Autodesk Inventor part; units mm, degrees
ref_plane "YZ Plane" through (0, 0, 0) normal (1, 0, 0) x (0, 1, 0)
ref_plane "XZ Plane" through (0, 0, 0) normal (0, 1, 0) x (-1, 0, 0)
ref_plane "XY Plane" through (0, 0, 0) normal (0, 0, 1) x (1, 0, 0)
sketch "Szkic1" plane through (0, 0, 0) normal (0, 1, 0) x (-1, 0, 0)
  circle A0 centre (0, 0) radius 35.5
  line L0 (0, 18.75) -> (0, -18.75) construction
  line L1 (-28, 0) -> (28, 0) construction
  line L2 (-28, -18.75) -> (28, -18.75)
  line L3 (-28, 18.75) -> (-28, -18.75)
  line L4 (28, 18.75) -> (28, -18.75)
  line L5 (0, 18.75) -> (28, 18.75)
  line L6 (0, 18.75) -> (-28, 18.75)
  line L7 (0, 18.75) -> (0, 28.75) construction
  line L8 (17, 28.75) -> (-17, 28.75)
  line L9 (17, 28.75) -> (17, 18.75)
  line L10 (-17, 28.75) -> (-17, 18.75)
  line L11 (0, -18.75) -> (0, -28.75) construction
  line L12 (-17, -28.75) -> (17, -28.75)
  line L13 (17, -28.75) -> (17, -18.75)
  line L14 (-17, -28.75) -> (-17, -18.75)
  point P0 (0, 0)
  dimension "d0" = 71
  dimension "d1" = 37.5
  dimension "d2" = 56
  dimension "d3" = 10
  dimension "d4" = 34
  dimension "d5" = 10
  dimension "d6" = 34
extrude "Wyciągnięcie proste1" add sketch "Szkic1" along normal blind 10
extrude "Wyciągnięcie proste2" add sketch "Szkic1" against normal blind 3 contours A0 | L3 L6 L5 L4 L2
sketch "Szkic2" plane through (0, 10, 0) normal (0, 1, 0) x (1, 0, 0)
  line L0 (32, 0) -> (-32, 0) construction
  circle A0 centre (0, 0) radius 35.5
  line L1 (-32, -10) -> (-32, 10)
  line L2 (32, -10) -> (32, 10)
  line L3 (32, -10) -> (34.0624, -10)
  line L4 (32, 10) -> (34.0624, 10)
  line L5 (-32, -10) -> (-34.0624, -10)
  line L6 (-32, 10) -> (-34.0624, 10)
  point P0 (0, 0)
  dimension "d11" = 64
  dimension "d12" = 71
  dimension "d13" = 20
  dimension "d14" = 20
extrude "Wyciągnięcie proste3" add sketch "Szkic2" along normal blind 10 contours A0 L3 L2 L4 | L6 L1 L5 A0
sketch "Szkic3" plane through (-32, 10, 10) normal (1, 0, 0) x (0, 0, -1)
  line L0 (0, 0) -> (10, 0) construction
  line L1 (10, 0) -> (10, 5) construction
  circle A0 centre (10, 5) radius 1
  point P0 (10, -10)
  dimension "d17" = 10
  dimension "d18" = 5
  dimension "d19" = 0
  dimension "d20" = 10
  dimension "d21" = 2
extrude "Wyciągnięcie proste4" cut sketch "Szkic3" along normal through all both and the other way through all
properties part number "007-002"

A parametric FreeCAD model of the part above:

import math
import FreeCAD as App
import Part
import Sketcher

V = App.Vector


def add_polygon(sketch, points):
    """Adds a closed chain of lines whose ends are joined by coincident constraints."""
    first, n = sketch.GeometryCount, len(points)
    for a, b in zip(points, points[1:] + points[:1]):
        sketch.addGeometry(Part.LineSegment(App.Vector(*a, 0), App.Vector(*b, 0)), False)
    for i in range(n):
        sketch.addConstraint(Sketcher.Constraint("Coincident", first + i, 2, first + (i + 1) % n, 1))

doc = App.newDocument("Part")
body = doc.addObject("PartDesign::Body", "Body")

sketch1 = doc.addObject("Sketcher::SketchObject", "Sketch")
body.addObject(sketch1)
sketch1.AttachmentSupport = (doc.XZ_Plane, [""])
sketch1.MapMode = "FlatFace"
sketch1.addGeometry(Part.Circle(V(0, 0, 0), V(0, 0, 1), 35.5), False)
add_polygon(sketch1, [(17, -18.75), (28, -18.75), (28, 18.75), (17, 18.75), (17, 28.75), (-17, 28.75), (-17, 18.75), (-28, 18.75), (-28, -18.75), (-17, -18.75), (-17, -28.75), (17, -28.75)])
sketch1.addConstraint(Sketcher.Constraint("Horizontal", 1))
sketch1.addConstraint(Sketcher.Constraint("Vertical", 2))
sketch1.addConstraint(Sketcher.Constraint("Horizontal", 3))
sketch1.addConstraint(Sketcher.Constraint("Vertical", 4))
sketch1.addConstraint(Sketcher.Constraint("Horizontal", 5))
sketch1.addConstraint(Sketcher.Constraint("Vertical", 6))
sketch1.addConstraint(Sketcher.Constraint("Horizontal", 7))
sketch1.addConstraint(Sketcher.Constraint("Vertical", 8))
sketch1.addConstraint(Sketcher.Constraint("Horizontal", 9))
sketch1.addConstraint(Sketcher.Constraint("Vertical", 10))
sketch1.addConstraint(Sketcher.Constraint("Horizontal", 11))
sketch1.addConstraint(Sketcher.Constraint("Vertical", 12))
sketch1.addConstraint(Sketcher.Constraint("Coincident", 0, 3, -1, 1))
sketch1.addConstraint(Sketcher.Constraint("Symmetric", 1, 2, 7, 2, -1, 1))
sketch1.addConstraint(Sketcher.Constraint("Symmetric", 3, 2, 9, 2, -1, 1))
sketch1.addConstraint(Sketcher.Constraint("Symmetric", 5, 2, 11, 2, -1, 1))
sketch1.addConstraint(Sketcher.Constraint("Symmetric", 3, 2, 6, 2, -2))
sketch1.addConstraint(Sketcher.Constraint("Diameter", 0, 71.0))
sketch1.addConstraint(Sketcher.Constraint("DistanceX", 5, 2, 5, 1, 34.0))
sketch1.addConstraint(Sketcher.Constraint("DistanceY", 4, 1, 4, 2, 10.0))
sketch1.addConstraint(Sketcher.Constraint("DistanceY", 2, 1, 2, 2, 37.5))
sketch1.addConstraint(Sketcher.Constraint("DistanceX", 8, 2, 1, 2, 56.0))
pad1 = doc.addObject("PartDesign::Pad", "Pad")
body.addObject(pad1)
pad1.Profile = sketch1
pad1.Length = 10
pad1.Reversed = True

sketch2 = doc.addObject("Sketcher::SketchObject", "Sketch001")
body.addObject(sketch2)
sketch2.AttachmentSupport = (doc.XZ_Plane, [""])
sketch2.MapMode = "FlatFace"
sketch2.addGeometry(Part.Circle(V(0, 0, 0), V(0, 0, 1), 35.5), False)
add_polygon(sketch2, [(17, -28.75), (17, -18.75), (-17, -18.75), (-17, -28.75)])
add_polygon(sketch2, [(-17, 28.75), (-17, 18.75), (17, 18.75), (17, 28.75)])
sketch2.addConstraint(Sketcher.Constraint("Vertical", 1))
sketch2.addConstraint(Sketcher.Constraint("Horizontal", 2))
sketch2.addConstraint(Sketcher.Constraint("Vertical", 3))
sketch2.addConstraint(Sketcher.Constraint("Horizontal", 4))
sketch2.addConstraint(Sketcher.Constraint("Vertical", 5))
sketch2.addConstraint(Sketcher.Constraint("Horizontal", 6))
sketch2.addConstraint(Sketcher.Constraint("Vertical", 7))
sketch2.addConstraint(Sketcher.Constraint("Horizontal", 8))
sketch2.addConstraint(Sketcher.Constraint("Coincident", 0, 3, -1, 1))
sketch2.addConstraint(Sketcher.Constraint("Symmetric", 1, 2, 5, 2, -1, 1))
sketch2.addConstraint(Sketcher.Constraint("Symmetric", 3, 2, 7, 2, -1, 1))
sketch2.addConstraint(Sketcher.Constraint("Vertical", 3, 2, 5, 2))
sketch2.addConstraint(Sketcher.Constraint("Diameter", 0, 71.0))
sketch2.addConstraint(Sketcher.Constraint("DistanceX", 2, 2, 2, 1, 34.0))
sketch2.addConstraint(Sketcher.Constraint("DistanceY", 1, 1, 1, 2, 10.0))
sketch2.addConstraint(Sketcher.Constraint("DistanceY", 2, 2, 5, 2, 37.5))
pad2 = doc.addObject("PartDesign::Pad", "Pad001")
body.addObject(pad2)
pad2.Profile = sketch2
pad2.Length = 3

sketch3 = doc.addObject("Sketcher::SketchObject", "Sketch002")
body.addObject(sketch3)
sketch3.AttachmentSupport = (doc.XZ_Plane, [""])
sketch3.MapMode = "FlatFace"
sketch3.AttachmentOffset = App.Placement(V(0, 0, -10), App.Rotation())
sketch3.addGeometry(Part.ArcOfCircle(Part.Circle(V(0, 0, 0), V(0, 0, 1), 35.5), math.radians(-16.361123), math.radians(16.361123)), False)
sketch3.addGeometry(Part.LineSegment(V(34.0624, -10, 0), V(32, -10, 0)), False)
sketch3.addGeometry(Part.LineSegment(V(32, -10, 0), V(32, 10, 0)), False)
sketch3.addGeometry(Part.LineSegment(V(32, 10, 0), V(34.0624, 10, 0)), False)
sketch3.addGeometry(Part.LineSegment(V(-32, -10, 0), V(-34.0624, -10, 0)), False)
sketch3.addGeometry(Part.ArcOfCircle(Part.Circle(V(0, 0, 0), V(0, 0, 1), 35.5), math.radians(163.638877), math.radians(196.361123)), False)
sketch3.addGeometry(Part.LineSegment(V(-34.0624, 10, 0), V(-32, 10, 0)), False)
sketch3.addGeometry(Part.LineSegment(V(-32, 10, 0), V(-32, -10, 0)), False)
sketch3.addConstraint(Sketcher.Constraint("Coincident", 0, 1, 1, 1))
sketch3.addConstraint(Sketcher.Constraint("Coincident", 1, 2, 2, 1))
sketch3.addConstraint(Sketcher.Constraint("Coincident", 2, 2, 3, 1))
sketch3.addConstraint(Sketcher.Constraint("Coincident", 3, 2, 0, 2))
sketch3.addConstraint(Sketcher.Constraint("Coincident", 4, 2, 5, 2))
sketch3.addConstraint(Sketcher.Constraint("Coincident", 5, 1, 6, 1))
sketch3.addConstraint(Sketcher.Constraint("Coincident", 6, 2, 7, 1))
sketch3.addConstraint(Sketcher.Constraint("Coincident", 7, 2, 4, 1))
sketch3.addConstraint(Sketcher.Constraint("Horizontal", 1))
sketch3.addConstraint(Sketcher.Constraint("Vertical", 2))
sketch3.addConstraint(Sketcher.Constraint("Horizontal", 3))
sketch3.addConstraint(Sketcher.Constraint("Horizontal", 4))
sketch3.addConstraint(Sketcher.Constraint("Horizontal", 6))
sketch3.addConstraint(Sketcher.Constraint("Vertical", 7))
sketch3.addConstraint(Sketcher.Constraint("Coincident", 0, 3, -1, 1))
sketch3.addConstraint(Sketcher.Constraint("Coincident", 5, 3, -1, 1))
sketch3.addConstraint(Sketcher.Constraint("Equal", 0, 5))
sketch3.addConstraint(Sketcher.Constraint("Symmetric", 1, 2, 6, 2, -1, 1))
sketch3.addConstraint(Sketcher.Constraint("Horizontal", 1, 2, 4, 2))
sketch3.addConstraint(Sketcher.Constraint("Horizontal", 3, 2, 5, 1))
sketch3.addConstraint(Sketcher.Constraint("Radius", 0, 35.5))
sketch3.addConstraint(Sketcher.Constraint("DistanceY", 2, 1, 2, 2, 20.0))
sketch3.addConstraint(Sketcher.Constraint("DistanceX", 6, 2, 2, 2, 64.0))
pad3 = doc.addObject("PartDesign::Pad", "Pad002")
body.addObject(pad3)
pad3.Profile = sketch3
pad3.Length = 10
pad3.Reversed = True

sketch4 = doc.addObject("Sketcher::SketchObject", "Sketch003")
body.addObject(sketch4)
sketch4.AttachmentSupport = (doc.YZ_Plane, [""])
sketch4.MapMode = "FlatFace"
sketch4.AttachmentOffset = App.Placement(V(0, 0, -32), App.Rotation())
sketch4.addGeometry(Part.Circle(V(15, 0, 0), V(0, 0, 1), 1), False)
sketch4.addConstraint(Sketcher.Constraint("PointOnObject", 0, 3, -1))
sketch4.addConstraint(Sketcher.Constraint("Diameter", 0, 2.0))
sketch4.addConstraint(Sketcher.Constraint("DistanceX", -1, 1, 0, 3, 15.0))
pocket1 = doc.addObject("PartDesign::Pocket", "Pocket")
body.addObject(pocket1)
pocket1.Profile = sketch4
pocket1.Type = "ThroughAll"
pocket1.Midplane = True

doc.recompute()
